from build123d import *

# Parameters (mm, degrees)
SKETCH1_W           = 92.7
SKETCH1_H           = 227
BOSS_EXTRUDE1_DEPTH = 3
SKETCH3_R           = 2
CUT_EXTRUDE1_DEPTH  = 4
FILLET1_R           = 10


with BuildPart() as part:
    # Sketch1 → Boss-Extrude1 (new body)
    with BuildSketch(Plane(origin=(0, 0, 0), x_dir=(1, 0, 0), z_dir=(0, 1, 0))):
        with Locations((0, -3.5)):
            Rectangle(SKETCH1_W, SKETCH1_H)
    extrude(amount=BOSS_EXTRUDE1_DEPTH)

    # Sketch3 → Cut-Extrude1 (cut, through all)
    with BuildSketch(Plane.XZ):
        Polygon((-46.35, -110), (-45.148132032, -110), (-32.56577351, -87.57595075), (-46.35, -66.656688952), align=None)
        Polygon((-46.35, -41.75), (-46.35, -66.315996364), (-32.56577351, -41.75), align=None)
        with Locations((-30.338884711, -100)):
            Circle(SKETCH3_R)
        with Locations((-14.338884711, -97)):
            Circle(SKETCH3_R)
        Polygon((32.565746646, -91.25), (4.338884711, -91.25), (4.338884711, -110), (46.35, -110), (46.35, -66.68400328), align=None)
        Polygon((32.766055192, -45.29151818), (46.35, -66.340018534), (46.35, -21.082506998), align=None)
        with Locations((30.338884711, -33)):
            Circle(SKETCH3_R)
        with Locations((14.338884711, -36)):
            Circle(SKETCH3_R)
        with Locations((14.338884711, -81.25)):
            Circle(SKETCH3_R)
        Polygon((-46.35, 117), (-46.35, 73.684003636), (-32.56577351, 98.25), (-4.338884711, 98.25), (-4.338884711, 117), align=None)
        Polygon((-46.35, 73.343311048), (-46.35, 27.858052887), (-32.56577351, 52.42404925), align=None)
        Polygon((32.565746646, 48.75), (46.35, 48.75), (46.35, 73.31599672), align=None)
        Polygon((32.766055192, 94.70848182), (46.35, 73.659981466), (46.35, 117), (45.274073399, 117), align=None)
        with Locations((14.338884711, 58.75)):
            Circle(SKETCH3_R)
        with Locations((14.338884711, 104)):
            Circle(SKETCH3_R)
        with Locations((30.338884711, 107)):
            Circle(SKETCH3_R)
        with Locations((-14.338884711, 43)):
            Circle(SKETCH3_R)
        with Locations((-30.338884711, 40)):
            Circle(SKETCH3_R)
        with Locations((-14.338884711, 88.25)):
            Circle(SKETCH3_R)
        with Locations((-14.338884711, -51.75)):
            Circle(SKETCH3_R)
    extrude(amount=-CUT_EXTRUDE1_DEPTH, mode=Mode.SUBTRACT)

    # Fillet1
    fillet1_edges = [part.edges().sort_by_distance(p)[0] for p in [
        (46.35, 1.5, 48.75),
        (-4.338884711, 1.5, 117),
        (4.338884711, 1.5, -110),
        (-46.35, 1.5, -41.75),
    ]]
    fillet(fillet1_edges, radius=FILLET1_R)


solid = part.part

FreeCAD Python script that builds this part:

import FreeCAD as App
import Part
import Sketcher


def edges_at(feature, points):
    """Names of the edges that pass closest to the given points."""
    edges = feature.Shape.Edges
    near = lambda p: min(range(len(edges)), key=lambda i: edges[i].distToShape(Part.Vertex(*p))[0])
    return sorted({f"Edge{near(p) + 1}" for p in points})

doc = App.newDocument("Part")
body = doc.addObject("PartDesign::Body", "Body")

# Sketch on XZ plane
sketch1 = body.newObject("Sketcher::SketchObject", "Sketch")
sketch1.AttachmentSupport = (doc.getObject("XZ_Plane"), [""])
sketch1.MapMode = "FlatFace"
sketch1.addGeometry(Part.LineSegment(App.Vector(-46.35, -110, 0), App.Vector(-46.35, 117, 0)), False)
sketch1.addGeometry(Part.LineSegment(App.Vector(-46.35, 117, 0), App.Vector(46.35, 117, 0)), False)
sketch1.addGeometry(Part.LineSegment(App.Vector(46.35, 117, 0), App.Vector(46.35, -110, 0)), False)
sketch1.addGeometry(Part.LineSegment(App.Vector(46.35, -110, 0), App.Vector(-46.35, -110, 0)), False)
sketch1.addConstraint(Sketcher.Constraint("Coincident", 0, 2, 1, 1))
sketch1.addConstraint(Sketcher.Constraint("Coincident", 1, 2, 2, 1))
sketch1.addConstraint(Sketcher.Constraint("Coincident", 2, 2, 3, 1))
sketch1.addConstraint(Sketcher.Constraint("Coincident", 3, 2, 0, 1))
sketch1.addConstraint(Sketcher.Constraint("Vertical", 0))
sketch1.addConstraint(Sketcher.Constraint("Horizontal", 1))
sketch1.addConstraint(Sketcher.Constraint("Vertical", 2))
sketch1.addConstraint(Sketcher.Constraint("Horizontal", 3))
sketch1.addConstraint(Sketcher.Constraint("DistanceY", 0, 1, 0, 2, 227.0))
sketch1.addConstraint(Sketcher.Constraint("DistanceX", 1, 1, 1, 2, 92.7))
sketch1.addConstraint(Sketcher.Constraint("DistanceY", -1, 1, 0, 2, 117.0))
sketch1.addConstraint(Sketcher.Constraint("DistanceX", 0, 2, -1, 1, 46.35))
pad1 = body.newObject("PartDesign::Pad", "Pad")
pad1.Profile = sketch1
pad1.Length = 3
pad1.Reversed = True

# Sketch on XZ plane
sketch2 = body.newObject("Sketcher::SketchObject", "Sketch001")
sketch2.AttachmentSupport = (doc.getObject("XZ_Plane"), [""])
sketch2.MapMode = "FlatFace"
sketch2.addGeometry(Part.LineSegment(App.Vector(-46.35, -110, 0), App.Vector(-45.148132, -110, 0)), False)
sketch2.addGeometry(Part.LineSegment(App.Vector(-45.148132, -110, 0), App.Vector(-32.565774, -87.575951, 0)), False)
sketch2.addGeometry(Part.LineSegment(App.Vector(-32.565774, -87.575951, 0), App.Vector(-46.35, -66.656689, 0)), False)
sketch2.addGeometry(Part.LineSegment(App.Vector(-46.35, -66.656689, 0), App.Vector(-46.35, -110, 0)), False)
sketch2.addGeometry(Part.LineSegment(App.Vector(-46.35, -41.75, 0), App.Vector(-46.35, -66.315996, 0)), False)
sketch2.addGeometry(Part.LineSegment(App.Vector(-46.35, -66.315996, 0), App.Vector(-32.565774, -41.75, 0)), False)
sketch2.addGeometry(Part.LineSegment(App.Vector(-32.565774, -41.75, 0), App.Vector(-46.35, -41.75, 0)), False)
sketch2.addGeometry(Part.Circle(App.Vector(-30.338885, -100, 0), App.Vector(0, 0, 1), 2), False)
sketch2.addGeometry(Part.Circle(App.Vector(-14.338885, -97, 0), App.Vector(0, 0, 1), 2), False)
sketch2.addGeometry(Part.LineSegment(App.Vector(32.565747, -91.25, 0), App.Vector(4.338885, -91.25, 0)), False)
sketch2.addGeometry(Part.LineSegment(App.Vector(4.338885, -91.25, 0), App.Vector(4.338885, -110, 0)), False)
sketch2.addGeometry(Part.LineSegment(App.Vector(4.338885, -110, 0), App.Vector(46.35, -110, 0)), False)
sketch2.addGeometry(Part.LineSegment(App.Vector(46.35, -110, 0), App.Vector(46.35, -66.684003, 0)), False)
sketch2.addGeometry(Part.LineSegment(App.Vector(46.35, -66.684003, 0), App.Vector(32.565747, -91.25, 0)), False)
sketch2.addGeometry(Part.LineSegment(App.Vector(32.766055, -45.291518, 0), App.Vector(46.35, -66.340019, 0)), False)
sketch2.addGeometry(Part.LineSegment(App.Vector(46.35, -66.340019, 0), App.Vector(46.35, -21.082507, 0)), False)
sketch2.addGeometry(Part.LineSegment(App.Vector(46.35, -21.082507, 0), App.Vector(32.766055, -45.291518, 0)), False)
sketch2.addGeometry(Part.Circle(App.Vector(30.338885, -33, 0), App.Vector(0, 0, 1), 2), False)
sketch2.addGeometry(Part.Circle(App.Vector(14.338885, -36, 0), App.Vector(0, 0, 1), 2), False)
sketch2.addGeometry(Part.Circle(App.Vector(14.338885, -81.25, 0), App.Vector(0, 0, 1), 2), False)
sketch2.addGeometry(Part.LineSegment(App.Vector(-46.35, 117, 0), App.Vector(-46.35, 73.684004, 0)), False)
sketch2.addGeometry(Part.LineSegment(App.Vector(-46.35, 73.684004, 0), App.Vector(-32.565774, 98.25, 0)), False)
sketch2.addGeometry(Part.LineSegment(App.Vector(-32.565774, 98.25, 0), App.Vector(-4.338885, 98.25, 0)), False)
sketch2.addGeometry(Part.LineSegment(App.Vector(-4.338885, 98.25, 0), App.Vector(-4.338885, 117, 0)), False)
sketch2.addGeometry(Part.LineSegment(App.Vector(-4.338885, 117, 0), App.Vector(-46.35, 117, 0)), False)
sketch2.addGeometry(Part.LineSegment(App.Vector(-46.35, 73.343311, 0), App.Vector(-46.35, 27.858053, 0)), False)
sketch2.addGeometry(Part.LineSegment(App.Vector(-46.35, 27.858053, 0), App.Vector(-32.565774, 52.424049, 0)), False)
sketch2.addGeometry(Part.LineSegment(App.Vector(-32.565774, 52.424049, 0), App.Vector(-46.35, 73.343311, 0)), False)
sketch2.addGeometry(Part.LineSegment(App.Vector(32.565747, 48.75, 0), App.Vector(46.35, 48.75, 0)), False)
sketch2.addGeometry(Part.LineSegment(App.Vector(46.35, 48.75, 0), App.Vector(46.35, 73.315997, 0)), False)
sketch2.addGeometry(Part.LineSegment(App.Vector(46.35, 73.315997, 0), App.Vector(32.565747, 48.75, 0)), False)
sketch2.addGeometry(Part.LineSegment(App.Vector(32.766055, 94.708482, 0), App.Vector(46.35, 73.659981, 0)), False)
sketch2.addGeometry(Part.LineSegment(App.Vector(46.35, 73.659981, 0), App.Vector(46.35, 117, 0)), False)
sketch2.addGeometry(Part.LineSegment(App.Vector(46.35, 117, 0), App.Vector(45.274073, 117, 0)), False)
sketch2.addGeometry(Part.LineSegment(App.Vector(45.274073, 117, 0), App.Vector(32.766055, 94.708482, 0)), False)
sketch2.addGeometry(Part.Circle(App.Vector(14.338885, 58.75, 0), App.Vector(0, 0, 1), 2), False)
sketch2.addGeometry(Part.Circle(App.Vector(14.338885, 104, 0), App.Vector(0, 0, 1), 2), False)
sketch2.addGeometry(Part.Circle(App.Vector(30.338885, 107, 0), App.Vector(0, 0, 1), 2), False)
sketch2.addGeometry(Part.Circle(App.Vector(-14.338885, 43, 0), App.Vector(0, 0, 1), 2), False)
sketch2.addGeometry(Part.Circle(App.Vector(-30.338885, 40, 0), App.Vector(0, 0, 1), 2), False)
sketch2.addGeometry(Part.Circle(App.Vector(-14.338885, 88.25, 0), App.Vector(0, 0, 1), 2), False)
sketch2.addGeometry(Part.Circle(App.Vector(-14.338885, -51.75, 0), App.Vector(0, 0, 1), 2), False)
sketch2.addConstraint(Sketcher.Constraint("Coincident", 0, 2, 1, 1))
sketch2.addConstraint(Sketcher.Constraint("Coincident", 1, 2, 2, 1))
sketch2.addConstraint(Sketcher.Constraint("Coincident", 2, 2, 3, 1))
sketch2.addConstraint(Sketcher.Constraint("Coincident", 3, 2, 0, 1))
sketch2.addConstraint(Sketcher.Constraint("Coincident", 4, 2, 5, 1))
sketch2.addConstraint(Sketcher.Constraint("Coincident", 5, 2, 6, 1))
sketch2.addConstraint(Sketcher.Constraint("Coincident", 6, 2, 4, 1))
sketch2.addConstraint(Sketcher.Constraint("Coincident", 9, 2, 10, 1))
sketch2.addConstraint(Sketcher.Constraint("Coincident", 10, 2, 11, 1))
sketch2.addConstraint(Sketcher.Constraint("Coincident", 11, 2, 12, 1))
sketch2.addConstraint(Sketcher.Constraint("Coincident", 12, 2, 13, 1))
sketch2.addConstraint(Sketcher.Constraint("Coincident", 13, 2, 9, 1))
sketch2.addConstraint(Sketcher.Constraint("Coincident", 14, 2, 15, 1))
sketch2.addConstraint(Sketcher.Constraint("Coincident", 15, 2, 16, 1))
sketch2.addConstraint(Sketcher.Constraint("Coincident", 16, 2, 14, 1))
sketch2.addConstraint(Sketcher.Constraint("Coincident", 20, 2, 21, 1))
sketch2.addConstraint(Sketcher.Constraint("Coincident", 21, 2, 22, 1))
sketch2.addConstraint(Sketcher.Constraint("Coincident", 22, 2, 23, 1))
sketch2.addConstraint(Sketcher.Constraint("Coincident", 23, 2, 24, 1))
sketch2.addConstraint(Sketcher.Constraint("Coincident", 24, 2, 20, 1))
sketch2.addConstraint(Sketcher.Constraint("Coincident", 25, 2, 26, 1))
sketch2.addConstraint(Sketcher.Constraint("Coincident", 26, 2, 27, 1))
sketch2.addConstraint(Sketcher.Constraint("Coincident", 27, 2, 25, 1))
sketch2.addConstraint(Sketcher.Constraint("Coincident", 28, 2, 29, 1))
sketch2.addConstraint(Sketcher.Constraint("Coincident", 29, 2, 30, 1))
sketch2.addConstraint(Sketcher.Constraint("Coincident", 30, 2, 28, 1))
sketch2.addConstraint(Sketcher.Constraint("Coincident", 31, 2, 32, 1))
sketch2.addConstraint(Sketcher.Constraint("Coincident", 32, 2, 33, 1))
sketch2.addConstraint(Sketcher.Constraint("Coincident", 33, 2, 34, 1))
sketch2.addConstraint(Sketcher.Constraint("Coincident", 34, 2, 31, 1))
sketch2.addConstraint(Sketcher.Constraint("Horizontal", 0))
sketch2.addConstraint(Sketcher.Constraint("Vertical", 3))
sketch2.addConstraint(Sketcher.Constraint("Vertical", 4))
sketch2.addConstraint(Sketcher.Constraint("Horizontal", 6))
sketch2.addConstraint(Sketcher.Constraint("Horizontal", 9))
sketch2.addConstraint(Sketcher.Constraint("Vertical", 10))
sketch2.addConstraint(Sketcher.Constraint("Horizontal", 11))
sketch2.addConstraint(Sketcher.Constraint("Vertical", 12))
sketch2.addConstraint(Sketcher.Constraint("Vertical", 15))
sketch2.addConstraint(Sketcher.Constraint("Vertical", 20))
sketch2.addConstraint(Sketcher.Constraint("Horizontal", 22))
sketch2.addConstraint(Sketcher.Constraint("Vertical", 23))
sketch2.addConstraint(Sketcher.Constraint("Horizontal", 24))
sketch2.addConstraint(Sketcher.Constraint("Vertical", 25))
sketch2.addConstraint(Sketcher.Constraint("Horizontal", 28))
sketch2.addConstraint(Sketcher.Constraint("Vertical", 29))
sketch2.addConstraint(Sketcher.Constraint("Vertical", 32))
sketch2.addConstraint(Sketcher.Constraint("Horizontal", 33))
sketch2.addConstraint(Sketcher.Constraint("Diameter", 7, 4.0))
sketch2.addConstraint(Sketcher.Constraint("Diameter", 8, 4.0))
sketch2.addConstraint(Sketcher.Constraint("Diameter", 17, 4.0))
sketch2.addConstraint(Sketcher.Constraint("Diameter", 18, 4.0))
sketch2.addConstraint(Sketcher.Constraint("Diameter", 19, 4.0))
sketch2.addConstraint(Sketcher.Constraint("Diameter", 35, 4.0))
sketch2.addConstraint(Sketcher.Constraint("Diameter", 36, 4.0))
sketch2.addConstraint(Sketcher.Constraint("Diameter", 37, 4.0))
sketch2.addConstraint(Sketcher.Constraint("Diameter", 38, 4.0))
sketch2.addConstraint(Sketcher.Constraint("Diameter", 39, 4.0))
sketch2.addConstraint(Sketcher.Constraint("Diameter", 40, 4.0))
sketch2.addConstraint(Sketcher.Constraint("Diameter", 41, 4.0))
sketch2.addConstraint(Sketcher.Constraint("DistanceY", 7, 3, -1, 1, 100.0))
sketch2.addConstraint(Sketcher.Constraint("DistanceY", 8, 3, -1, 1, 97.0))
sketch2.addConstraint(Sketcher.Constraint("DistanceY", 17, 3, -1, 1, 33.0))
sketch2.addConstraint(Sketcher.Constraint("DistanceY", 18, 3, -1, 1, 36.0))
sketch2.addConstraint(Sketcher.Constraint("DistanceY", -1, 1, 36, 3, 104.0))
sketch2.addConstraint(Sketcher.Constraint("DistanceY", -1, 1, 37, 3, 107.0))
sketch2.addConstraint(Sketcher.Constraint("DistanceY", -1, 1, 38, 3, 43.0))
sketch2.addConstraint(Sketcher.Constraint("DistanceY", -1, 1, 39, 3, 40.0))
sketch2.addConstraint(Sketcher.Constraint("DistanceY", 0, 2, -1, 1, 110.0))
sketch2.addConstraint(Sketcher.Constraint("DistanceY", 10, 2, -1, 1, 110.0))
sketch2.addConstraint(Sketcher.Constraint("DistanceY", -1, 1, 23, 2, 117.0))
sketch2.addConstraint(Sketcher.Constraint("DistanceY", -1, 1, 32, 2, 117.0))
sketch2.addConstraint(Sketcher.Constraint("DistanceX", 7, 3, 8, 3, 16.0))
sketch2.addConstraint(Sketcher.Constraint("DistanceX", 18, 3, 17, 3, 16.0))
sketch2.addConstraint(Sketcher.Constraint("DistanceX", 19, 3, 17, 3, 16.0))
sketch2.addConstraint(Sketcher.Constraint("DistanceX", 35, 3, 17, 3, 16.0))
sketch2.addConstraint(Sketcher.Constraint("DistanceY", 19, 3, 35, 3, 140.0))
sketch2.addConstraint(Sketcher.Constraint("DistanceX", 36, 3, 17, 3, 16.0))
sketch2.addConstraint(Sketcher.Constraint("DistanceX", 36, 3, 37, 3, 16.0))
sketch2.addConstraint(Sketcher.Constraint("DistanceX", 39, 3, 38, 3, 16.0))
sketch2.addConstraint(Sketcher.Constraint("DistanceX", 39, 3, 40, 3, 16.0))
sketch2.addConstraint(Sketcher.Constraint("DistanceX", 7, 3, 41, 3, 16.0))
sketch2.addConstraint(Sketcher.Constraint("DistanceY", 41, 3, 5, 2, 10.0))
sketch2.addConstraint(Sketcher.Constraint("DistanceX", 9, 2, 19, 3, 10.0))
sketch2.addConstraint(Sketcher.Constraint("DistanceY", 9, 2, 19, 3, 10.0))
sketch2.addConstraint(Sketcher.Constraint("DistanceY", 40, 3, 21, 2, 10.0))
sketch2.addConstraint(Sketcher.Constraint("DistanceX", 40, 3, 22, 2, 10.0))
sketch2.addConstraint(Sketcher.Constraint("DistanceY", 28, 2, 35, 3, 10.0))
sketch2.addConstraint(Sketcher.Constraint("DistanceY", 10, 2, 10, 1, 18.75))
sketch2.addConstraint(Sketcher.Constraint("DistanceY", 23, 1, 23, 2, 18.75))
sketch2.addConstraint(Sketcher.Constraint("DistanceY", 19, 3, 41, 3, 29.5))
sketch2.addConstraint(Sketcher.Constraint("DistanceX", 2, 2, -1, 1, 46.35))
sketch2.addConstraint(Sketcher.Constraint("DistanceX", 4, 2, -1, 1, 46.35))
sketch2.addConstraint(Sketcher.Constraint("DistanceX", -1, 1, 11, 2, 46.35))
sketch2.addConstraint(Sketcher.Constraint("DistanceX", -1, 1, 14, 2, 46.35))
sketch2.addConstraint(Sketcher.Constraint("DistanceX", 20, 2, -1, 1, 46.35))
sketch2.addConstraint(Sketcher.Constraint("DistanceX", 25, 2, -1, 1, 46.35))
sketch2.addConstraint(Sketcher.Constraint("DistanceX", -1, 1, 28, 2, 46.35))
sketch2.addConstraint(Sketcher.Constraint("DistanceX", -1, 1, 31, 2, 46.35))
sketch2.addConstraint(Sketcher.Constraint("DistanceX", 9, 2, 9, 1, 28.226862))
sketch2.addConstraint(Sketcher.Constraint("DistanceX", 22, 1, 22, 2, 28.226889))
sketch2.addConstraint(Sketcher.Constraint("DistanceY", 3, 2, 3, 1, 43.343311))
sketch2.addConstraint(Sketcher.Constraint("DistanceY", 15, 1, 15, 2, 45.257512))
sketch2.addConstraint(Sketcher.Constraint("DistanceY", 25, 2, 25, 1, 45.485258))
sketch2.addConstraint(Sketcher.Constraint("DistanceY", 32, 1, 32, 2, 43.340019))
sketch2.addConstraint(Sketcher.Constraint("DistanceY", 14, 2, 16, 2, 21.0485))
sketch2.addConstraint(Sketcher.Constraint("DistanceY", 31, 2, 34, 2, 21.0485))
sketch2.addConstraint(Sketcher.Constraint("Distance", 1, 25.71291))
sketch2.addConstraint(Sketcher.Constraint("Distance", 5, 28.169009))
sketch2.addConstraint(Sketcher.Constraint("Distance", 16, 27.759679))
sketch2.addConstraint(Sketcher.Constraint("Distance", 21, 28.169009))
sketch2.addConstraint(Sketcher.Constraint("Distance", 26, 28.169009))
sketch2.addConstraint(Sketcher.Constraint("DistanceX", 0, 1, 0, 2, 1.201868))
sketch2.addConstraint(Sketcher.Constraint("DistanceX", 6, 2, 6, 1, 13.784226))
sketch2.addConstraint(Sketcher.Constraint("DistanceX", 11, 1, 11, 2, 42.011115))
sketch2.addConstraint(Sketcher.Constraint("DistanceX", 24, 2, 24, 1, 42.011115))
sketch2.addConstraint(Sketcher.Constraint("DistanceX", 28, 1, 28, 2, 13.784253))
sketch2.addConstraint(Sketcher.Constraint("DistanceX", 33, 2, 33, 1, 1.075927))
sketch2.addConstraint(Sketcher.Constraint("DistanceY", 12, 1, 12, 2, 43.315997))
sketch2.addConstraint(Sketcher.Constraint("DistanceY", 29, 1, 29, 2, 24.565997))
sketch2.addConstraint(Sketcher.Constraint("DistanceY", 1, 2, -1, 1, 87.575951))
sketch2.addConstraint(Sketcher.Constraint("DistanceY", 14, 2, -1, 1, 66.340019))
sketch2.addConstraint(Sketcher.Constraint("DistanceY", -1, 1, 26, 2, 52.424049))
sketch2.addConstraint(Sketcher.Constraint("DistanceY", -1, 1, 27, 2, 73.343311))
sketch2.addConstraint(Sketcher.Constraint("DistanceX", 8, 3, 17, 3, 44.677769))
sketch2.addConstraint(Sketcher.Constraint("DistanceX", 37, 3, 34, 2, 2.42717))
pocket1 = body.newObject("PartDesign::Pocket", "Pocket")
pocket1.Profile = sketch2
pocket1.Type = "ThroughAll"
doc.recompute()

fillet = body.newObject("PartDesign::Fillet", "Fillet")
fillet.Base = (pocket1, edges_at(pocket1, [
    (46.35, 1.5, 48.75),
    (-4.339, 1.5, 117),
    (4.339, 1.5, -110),
    (-46.35, 1.5, -41.75),
]))
fillet.Radius = 10

doc.recompute()
